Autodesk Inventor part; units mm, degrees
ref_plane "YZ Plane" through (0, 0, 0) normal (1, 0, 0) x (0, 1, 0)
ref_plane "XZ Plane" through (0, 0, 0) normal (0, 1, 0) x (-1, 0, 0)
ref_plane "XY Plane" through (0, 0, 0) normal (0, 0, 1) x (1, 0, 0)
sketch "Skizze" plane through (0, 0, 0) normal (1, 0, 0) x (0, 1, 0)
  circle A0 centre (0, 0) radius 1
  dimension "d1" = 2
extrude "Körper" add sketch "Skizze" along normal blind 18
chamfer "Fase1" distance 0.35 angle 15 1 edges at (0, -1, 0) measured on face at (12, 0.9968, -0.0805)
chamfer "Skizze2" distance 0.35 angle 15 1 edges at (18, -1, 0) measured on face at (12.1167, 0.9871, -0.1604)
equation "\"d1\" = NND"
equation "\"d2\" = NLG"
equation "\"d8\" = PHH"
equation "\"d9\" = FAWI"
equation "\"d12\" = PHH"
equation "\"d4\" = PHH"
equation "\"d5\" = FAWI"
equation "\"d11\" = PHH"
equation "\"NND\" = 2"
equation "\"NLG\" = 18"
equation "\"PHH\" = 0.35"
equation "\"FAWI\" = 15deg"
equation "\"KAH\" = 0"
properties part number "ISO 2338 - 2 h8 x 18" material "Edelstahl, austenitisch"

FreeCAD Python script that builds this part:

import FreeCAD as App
import Part
import Sketcher

V = App.Vector
Q = App.Units.Quantity


def edges_at(feature, points):
    """Names of the edges that pass closest to the given points."""
    edges = feature.Shape.Edges
    near = lambda p: min(range(len(edges)), key=lambda i: edges[i].distToShape(Part.Vertex(*p))[0])
    return sorted({f"Edge{near(p) + 1}" for p in points})

doc = App.newDocument("Part")
body = doc.addObject("PartDesign::Body", "Body")

sketch1 = body.newObject("Sketcher::SketchObject", "Sketch")
sketch1.AttachmentSupport = (doc.getObject("YZ_Plane"), [""])
sketch1.MapMode = "FlatFace"
sketch1.addGeometry(Part.Circle(V(0, 0, 0), V(0, 0, 1), 1), False)
sketch1.addConstraint([
    Sketcher.Constraint("Coincident", 0, 3, -1, 1),
    Sketcher.Constraint("Diameter", 0, Q("2 mm")),
])
pad1 = body.newObject("PartDesign::Pad", "Pad")
pad1.Profile = sketch1
pad1.Length = 18
doc.recompute()

chamfer = body.newObject("PartDesign::Chamfer", "Chamfer")
chamfer.Base = (pad1, edges_at(pad1, [(0, -1, 0)]))
chamfer.ChamferType = "Distance and Angle"
chamfer.Size = 0.35
chamfer.Angle = 15
doc.recompute()

chamfer2 = body.newObject("PartDesign::Chamfer", "Chamfer001")
chamfer2.Base = (chamfer, edges_at(chamfer, [(18, -1, 0)]))
chamfer2.ChamferType = "Distance and Angle"
chamfer2.Size = 0.35
chamfer2.Angle = 15

doc.recompute()
